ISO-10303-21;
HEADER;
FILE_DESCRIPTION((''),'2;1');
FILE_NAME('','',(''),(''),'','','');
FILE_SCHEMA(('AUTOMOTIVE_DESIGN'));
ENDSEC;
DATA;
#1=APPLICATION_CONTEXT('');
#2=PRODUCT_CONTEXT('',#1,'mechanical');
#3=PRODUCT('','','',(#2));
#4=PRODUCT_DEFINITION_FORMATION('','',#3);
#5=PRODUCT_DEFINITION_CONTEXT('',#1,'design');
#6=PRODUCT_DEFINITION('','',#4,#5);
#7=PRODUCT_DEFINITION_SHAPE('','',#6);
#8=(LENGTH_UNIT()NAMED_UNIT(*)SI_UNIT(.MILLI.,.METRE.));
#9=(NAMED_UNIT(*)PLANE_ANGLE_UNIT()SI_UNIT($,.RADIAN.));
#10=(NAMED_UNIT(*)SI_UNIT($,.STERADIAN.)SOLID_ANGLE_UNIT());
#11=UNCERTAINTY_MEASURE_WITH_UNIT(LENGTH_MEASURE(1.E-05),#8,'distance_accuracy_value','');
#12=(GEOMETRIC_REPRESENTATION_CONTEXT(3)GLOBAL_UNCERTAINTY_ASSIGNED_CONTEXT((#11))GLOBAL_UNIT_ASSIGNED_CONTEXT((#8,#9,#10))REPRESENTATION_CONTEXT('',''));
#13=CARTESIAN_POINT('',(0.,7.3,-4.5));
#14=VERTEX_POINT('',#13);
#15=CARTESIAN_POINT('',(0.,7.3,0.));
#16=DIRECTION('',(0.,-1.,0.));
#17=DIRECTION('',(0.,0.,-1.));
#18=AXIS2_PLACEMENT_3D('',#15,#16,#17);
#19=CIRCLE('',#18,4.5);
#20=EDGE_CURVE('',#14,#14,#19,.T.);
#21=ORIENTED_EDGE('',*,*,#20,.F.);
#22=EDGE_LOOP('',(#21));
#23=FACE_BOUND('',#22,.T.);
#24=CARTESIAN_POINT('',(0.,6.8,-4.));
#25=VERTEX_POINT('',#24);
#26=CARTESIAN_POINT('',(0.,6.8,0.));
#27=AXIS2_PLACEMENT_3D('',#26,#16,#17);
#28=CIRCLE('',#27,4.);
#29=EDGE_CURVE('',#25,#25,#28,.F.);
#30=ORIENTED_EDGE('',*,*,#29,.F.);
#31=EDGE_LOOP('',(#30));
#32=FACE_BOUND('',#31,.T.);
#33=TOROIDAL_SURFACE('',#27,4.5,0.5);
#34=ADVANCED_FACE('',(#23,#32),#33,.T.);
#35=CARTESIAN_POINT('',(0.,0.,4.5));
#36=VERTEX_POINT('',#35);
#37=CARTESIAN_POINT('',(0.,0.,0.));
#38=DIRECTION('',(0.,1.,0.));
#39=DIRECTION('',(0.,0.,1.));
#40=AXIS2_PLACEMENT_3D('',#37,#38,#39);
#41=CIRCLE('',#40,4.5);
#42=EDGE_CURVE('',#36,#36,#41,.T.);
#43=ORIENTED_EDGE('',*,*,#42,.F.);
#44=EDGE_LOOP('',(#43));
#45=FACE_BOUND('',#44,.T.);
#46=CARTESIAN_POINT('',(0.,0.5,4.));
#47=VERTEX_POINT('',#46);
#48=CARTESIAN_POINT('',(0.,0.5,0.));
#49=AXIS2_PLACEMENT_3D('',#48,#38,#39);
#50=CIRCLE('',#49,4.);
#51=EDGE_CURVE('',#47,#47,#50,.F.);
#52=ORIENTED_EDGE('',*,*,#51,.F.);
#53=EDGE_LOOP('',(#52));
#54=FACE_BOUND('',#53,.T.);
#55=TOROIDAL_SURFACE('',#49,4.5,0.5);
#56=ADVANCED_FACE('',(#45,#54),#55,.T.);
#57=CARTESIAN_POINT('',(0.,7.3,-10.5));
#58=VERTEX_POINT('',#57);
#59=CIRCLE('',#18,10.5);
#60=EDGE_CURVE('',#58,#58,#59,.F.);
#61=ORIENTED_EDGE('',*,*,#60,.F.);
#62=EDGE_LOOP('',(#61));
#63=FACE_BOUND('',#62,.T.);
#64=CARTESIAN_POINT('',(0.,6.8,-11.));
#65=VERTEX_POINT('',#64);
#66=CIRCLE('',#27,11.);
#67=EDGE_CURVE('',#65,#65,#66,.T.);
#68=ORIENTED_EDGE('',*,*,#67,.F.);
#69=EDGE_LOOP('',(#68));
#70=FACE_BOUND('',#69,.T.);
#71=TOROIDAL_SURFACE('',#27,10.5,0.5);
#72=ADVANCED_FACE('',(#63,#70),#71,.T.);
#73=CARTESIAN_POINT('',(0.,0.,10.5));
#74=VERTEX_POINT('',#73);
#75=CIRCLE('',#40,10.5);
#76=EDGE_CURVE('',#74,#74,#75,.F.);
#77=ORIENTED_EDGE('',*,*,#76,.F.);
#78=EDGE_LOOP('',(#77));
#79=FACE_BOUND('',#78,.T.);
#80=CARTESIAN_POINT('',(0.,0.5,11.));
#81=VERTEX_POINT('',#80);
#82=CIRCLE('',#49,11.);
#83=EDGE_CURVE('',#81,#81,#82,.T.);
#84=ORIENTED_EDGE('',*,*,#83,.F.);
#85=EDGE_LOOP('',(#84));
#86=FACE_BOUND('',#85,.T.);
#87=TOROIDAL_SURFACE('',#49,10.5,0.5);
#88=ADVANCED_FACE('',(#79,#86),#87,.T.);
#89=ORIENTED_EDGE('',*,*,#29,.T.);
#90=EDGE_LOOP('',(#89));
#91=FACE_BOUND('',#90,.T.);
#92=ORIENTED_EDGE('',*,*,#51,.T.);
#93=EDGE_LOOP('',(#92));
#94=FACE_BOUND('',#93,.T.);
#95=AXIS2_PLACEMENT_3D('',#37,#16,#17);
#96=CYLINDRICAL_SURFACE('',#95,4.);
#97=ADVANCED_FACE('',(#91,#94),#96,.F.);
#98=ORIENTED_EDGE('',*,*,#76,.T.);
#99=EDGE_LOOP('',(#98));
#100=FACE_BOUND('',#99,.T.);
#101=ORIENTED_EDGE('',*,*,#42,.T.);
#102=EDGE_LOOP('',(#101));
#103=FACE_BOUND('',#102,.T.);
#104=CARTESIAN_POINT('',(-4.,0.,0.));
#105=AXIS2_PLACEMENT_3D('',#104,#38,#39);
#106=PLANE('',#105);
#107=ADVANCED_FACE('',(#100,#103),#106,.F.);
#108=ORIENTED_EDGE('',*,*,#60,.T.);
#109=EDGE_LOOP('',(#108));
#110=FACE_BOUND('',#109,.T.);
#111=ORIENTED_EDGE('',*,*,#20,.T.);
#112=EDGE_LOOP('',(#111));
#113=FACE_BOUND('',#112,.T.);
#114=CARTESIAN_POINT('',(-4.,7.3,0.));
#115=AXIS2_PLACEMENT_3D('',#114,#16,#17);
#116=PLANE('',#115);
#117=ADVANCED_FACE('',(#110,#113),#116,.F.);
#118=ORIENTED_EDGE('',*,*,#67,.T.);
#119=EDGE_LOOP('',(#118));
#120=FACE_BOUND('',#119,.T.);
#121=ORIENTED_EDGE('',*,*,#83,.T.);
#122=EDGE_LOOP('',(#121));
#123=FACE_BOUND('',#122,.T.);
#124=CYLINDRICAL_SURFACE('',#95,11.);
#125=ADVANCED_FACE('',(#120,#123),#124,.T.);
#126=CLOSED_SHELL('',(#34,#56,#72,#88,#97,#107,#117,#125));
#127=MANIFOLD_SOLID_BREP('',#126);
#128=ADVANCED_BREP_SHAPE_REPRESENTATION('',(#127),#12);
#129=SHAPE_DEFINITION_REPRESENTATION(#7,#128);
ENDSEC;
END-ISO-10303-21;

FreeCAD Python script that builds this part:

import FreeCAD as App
import Part
import Sketcher
from FreeCAD import Vector
Q = App.Units.Quantity


def edges_at(feature, points):
    """Names of the edges that pass closest to the given points."""
    edges = feature.Shape.Edges
    near = lambda p: min(range(len(edges)), key=lambda i: edges[i].distToShape(Part.Vertex(*p))[0])
    return sorted({f"Edge{near(p) + 1}" for p in points})


def add_polygon(sketch, points):
    """Adds a closed chain of lines whose ends are joined by coincident constraints."""
    first, n = sketch.GeometryCount, len(points)
    for a, b in zip(points, points[1:] + points[:1]):
        sketch.addGeometry(Part.LineSegment(App.Vector(*a, 0), App.Vector(*b, 0)), False)
    for i in range(n):
        sketch.addConstraint(Sketcher.Constraint("Coincident", first + i, 2, first + (i + 1) % n, 1))

doc = App.newDocument("Part")
body = doc.addObject("PartDesign::Body", "Body")

# Sketch on XY plane
sketch1 = doc.addObject("Sketcher::SketchObject", "Sketch")
body.addObject(sketch1)
sketch1.AttachmentSupport = (doc.XY_Plane, [""])
sketch1.MapMode = "FlatFace"
add_polygon(sketch1, [(-11, 7.3), (-11, 0), (-4, 0), (-4, 7.3)])  # lines 0-3
sketch1.addConstraint(Sketcher.Constraint("Vertical", 0))
sketch1.addConstraint(Sketcher.Constraint("Horizontal", 1))
sketch1.addConstraint(Sketcher.Constraint("Vertical", 2))
sketch1.addConstraint(Sketcher.Constraint("Horizontal", 3))
sketch1.addConstraint(Sketcher.Constraint("PointOnObject", 0, 2, -1))
sketch1.addConstraint(Sketcher.Constraint("DistanceX", 1, 1, 1, 2, Q("7 mm")))
sketch1.addConstraint(Sketcher.Constraint("DistanceY", 0, 2, 0, 1, Q("7.3 mm")))
sketch1.addConstraint(Sketcher.Constraint("DistanceX", 0, 2, -1, 1, Q("11 mm")))
revolution = doc.addObject("PartDesign::Revolution", "Revolution")
body.addObject(revolution)
revolution.Profile = sketch1
revolution.ReferenceAxis = (sketch1, ["V_Axis"])
revolution.Angle = 360
doc.recompute()

fillet = doc.addObject("PartDesign::Fillet", "Fillet")
body.addObject(fillet)
fillet.Base = (revolution, edges_at(revolution, [
    (0, 0, 4),
    (0, 0, 11),
    (0, 7.3, 11),
    (0, 7.3, 4),
]))
fillet.Radius = 0.5

doc.recompute()
